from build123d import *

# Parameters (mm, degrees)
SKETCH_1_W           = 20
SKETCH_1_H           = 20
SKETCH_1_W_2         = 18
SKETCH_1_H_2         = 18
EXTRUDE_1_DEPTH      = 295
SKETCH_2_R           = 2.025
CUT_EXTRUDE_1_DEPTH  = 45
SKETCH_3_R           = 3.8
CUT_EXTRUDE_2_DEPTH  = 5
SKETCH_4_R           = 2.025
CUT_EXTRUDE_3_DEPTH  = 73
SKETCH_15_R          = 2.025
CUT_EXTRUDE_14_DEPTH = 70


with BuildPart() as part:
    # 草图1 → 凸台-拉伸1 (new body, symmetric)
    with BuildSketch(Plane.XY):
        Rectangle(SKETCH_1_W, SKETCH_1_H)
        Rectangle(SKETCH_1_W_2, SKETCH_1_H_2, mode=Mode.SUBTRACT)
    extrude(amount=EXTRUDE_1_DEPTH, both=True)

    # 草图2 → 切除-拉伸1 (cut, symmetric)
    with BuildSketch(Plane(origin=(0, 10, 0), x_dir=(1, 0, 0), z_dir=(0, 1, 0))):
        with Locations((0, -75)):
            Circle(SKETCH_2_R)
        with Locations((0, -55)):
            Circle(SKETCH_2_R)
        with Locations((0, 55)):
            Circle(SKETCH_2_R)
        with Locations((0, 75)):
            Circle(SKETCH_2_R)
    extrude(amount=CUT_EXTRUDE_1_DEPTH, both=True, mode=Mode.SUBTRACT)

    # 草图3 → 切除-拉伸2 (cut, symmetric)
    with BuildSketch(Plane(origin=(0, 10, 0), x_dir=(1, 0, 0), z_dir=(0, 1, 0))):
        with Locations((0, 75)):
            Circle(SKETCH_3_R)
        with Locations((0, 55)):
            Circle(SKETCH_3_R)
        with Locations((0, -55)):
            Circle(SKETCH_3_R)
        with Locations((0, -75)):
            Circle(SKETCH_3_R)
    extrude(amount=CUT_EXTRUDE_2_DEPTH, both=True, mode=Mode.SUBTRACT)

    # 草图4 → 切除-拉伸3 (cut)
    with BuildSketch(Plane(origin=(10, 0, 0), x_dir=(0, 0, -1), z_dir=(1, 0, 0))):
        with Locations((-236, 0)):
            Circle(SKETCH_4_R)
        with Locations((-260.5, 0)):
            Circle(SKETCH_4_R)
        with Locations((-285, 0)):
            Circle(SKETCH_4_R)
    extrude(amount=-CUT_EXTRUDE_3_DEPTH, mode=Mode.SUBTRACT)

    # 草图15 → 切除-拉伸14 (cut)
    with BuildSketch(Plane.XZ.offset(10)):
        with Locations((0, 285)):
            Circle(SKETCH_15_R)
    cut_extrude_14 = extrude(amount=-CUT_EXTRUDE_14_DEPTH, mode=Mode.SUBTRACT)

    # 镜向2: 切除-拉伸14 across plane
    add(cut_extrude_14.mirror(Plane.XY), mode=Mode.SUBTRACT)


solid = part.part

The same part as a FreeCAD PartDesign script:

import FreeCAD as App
import Part
import Sketcher
from FreeCAD import Vector

doc = App.newDocument("Part")
body = doc.addObject("PartDesign::Body", "Body")

sketch1 = body.newObject("Sketcher::SketchObject", "Sketch")
sketch1.AttachmentSupport = (doc.getObject("XY_Plane"), [""])
sketch1.MapMode = "FlatFace"
sketch1.addGeometry([
    Part.LineSegment(Vector(-10, 10, 0), Vector(-10, -10, 0)),
    Part.LineSegment(Vector(-10, -10, 0), Vector(10, -10, 0)),
    Part.LineSegment(Vector(10, -10, 0), Vector(10, 10, 0)),
    Part.LineSegment(Vector(10, 10, 0), Vector(-10, 10, 0)),
    Part.LineSegment(Vector(9, -9, 0), Vector(-9, -9, 0)),
    Part.LineSegment(Vector(-9, -9, 0), Vector(-9, 9, 0)),
    Part.LineSegment(Vector(-9, 9, 0), Vector(9, 9, 0)),
    Part.LineSegment(Vector(9, 9, 0), Vector(9, -9, 0)),
], False)
sketch1.addConstraint([
    Sketcher.Constraint("Coincident", 0, 2, 1, 1),
    Sketcher.Constraint("Coincident", 1, 2, 2, 1),
    Sketcher.Constraint("Coincident", 2, 2, 3, 1),
    Sketcher.Constraint("Coincident", 3, 2, 0, 1),
    Sketcher.Constraint("Coincident", 4, 2, 5, 1),
    Sketcher.Constraint("Coincident", 5, 2, 6, 1),
    Sketcher.Constraint("Coincident", 6, 2, 7, 1),
    Sketcher.Constraint("Coincident", 7, 2, 4, 1),
    Sketcher.Constraint("Vertical", 0),
    Sketcher.Constraint("Horizontal", 1),
    Sketcher.Constraint("Vertical", 2),
    Sketcher.Constraint("Horizontal", 3),
    Sketcher.Constraint("Horizontal", 4),
    Sketcher.Constraint("Vertical", 5),
    Sketcher.Constraint("Horizontal", 6),
    Sketcher.Constraint("Vertical", 7),
    Sketcher.Constraint("Symmetric", 0, 2, 2, 2, -1, 1),
    Sketcher.Constraint("Symmetric", 4, 2, 6, 2, -1, 1),
    Sketcher.Constraint("Equal", 3, 0),
    Sketcher.Constraint("Equal", 6, 5),
    Sketcher.Constraint("DistanceX", 1, 1, 1, 2, 20.0),
    Sketcher.Constraint("DistanceX", 4, 2, 4, 1, 18.0),
])
pad1 = body.newObject("PartDesign::Pad", "Pad")
pad1.Profile = sketch1
pad1.Length = 590
pad1.Midplane = True

sketch2 = body.newObject("Sketcher::SketchObject", "Sketch001")
sketch2.AttachmentSupport = (doc.getObject("XZ_Plane"), [""])
sketch2.MapMode = "FlatFace"
sketch2.AttachmentOffset = App.Placement(Vector(0, 0, -10), App.Rotation())
sketch2.addGeometry([
    Part.Circle(Vector(0, 75, 0), Vector(0, 0, 1), 2),
    Part.Circle(Vector(0, 55, 0), Vector(0, 0, 1), 2),
    Part.Circle(Vector(0, -55, 0), Vector(0, 0, 1), 2),
    Part.Circle(Vector(0, -75, 0), Vector(0, 0, 1), 2),
], False)
sketch2.addConstraint([
    Sketcher.Constraint("Equal", 0, 1),
    Sketcher.Constraint("Equal", 1, 2),
    Sketcher.Constraint("Equal", 2, 3),
    Sketcher.Constraint("Symmetric", 1, 3, 2, 3, -1, 1),
    Sketcher.Constraint("Symmetric", 0, 3, 3, 3, -1, 1),
    Sketcher.Constraint("PointOnObject", 0, 3, -2),
    Sketcher.Constraint("PointOnObject", 1, 3, -2),
    Sketcher.Constraint("Diameter", 0, 4.05),
    Sketcher.Constraint("DistanceY", -1, 1, 0, 3, 75.0),
    Sketcher.Constraint("DistanceY", -1, 1, 1, 3, 55.0),
])
pocket1 = body.newObject("PartDesign::Pocket", "Pocket")
pocket1.Profile = sketch2
pocket1.Length = 90
pocket1.Midplane = True

sketch3 = body.newObject("Sketcher::SketchObject", "Sketch002")
sketch3.AttachmentSupport = (doc.getObject("XZ_Plane"), [""])
sketch3.MapMode = "FlatFace"
sketch3.AttachmentOffset = App.Placement(Vector(0, 0, -10), App.Rotation())
sketch3.addGeometry([
    Part.Circle(Vector(0, -75, 0), Vector(0, 0, 1), 3.8),
    Part.Circle(Vector(0, -55, 0), Vector(0, 0, 1), 3.8),
    Part.Circle(Vector(0, 55, 0), Vector(0, 0, 1), 3.8),
    Part.Circle(Vector(0, 75, 0), Vector(0, 0, 1), 3.8),
], False)
sketch3.addConstraint([
    Sketcher.Constraint("Equal", 0, 1),
    Sketcher.Constraint("Equal", 1, 2),
    Sketcher.Constraint("Equal", 2, 3),
    Sketcher.Constraint("Symmetric", 1, 3, 2, 3, -1, 1),
    Sketcher.Constraint("Symmetric", 0, 3, 3, 3, -1, 1),
    Sketcher.Constraint("PointOnObject", 0, 3, -2),
    Sketcher.Constraint("PointOnObject", 1, 3, -2),
    Sketcher.Constraint("Diameter", 0, 7.6),
    Sketcher.Constraint("DistanceY", 0, 3, -1, 1, 75.0),
    Sketcher.Constraint("DistanceY", 1, 3, -1, 1, 55.0),
])
pocket2 = body.newObject("PartDesign::Pocket", "Pocket001")
pocket2.Profile = sketch3
pocket2.Length = 10
pocket2.Midplane = True

sketch4 = body.newObject("Sketcher::SketchObject", "Sketch003")
sketch4.AttachmentSupport = (doc.getObject("YZ_Plane"), [""])
sketch4.MapMode = "FlatFace"
sketch4.AttachmentOffset = App.Placement(Vector(0, 0, 10), App.Rotation())
sketch4.addGeometry([
    Part.Circle(Vector(0, 236, 0), Vector(0, 0, 1), 2),
    Part.Circle(Vector(0, 260.5, 0), Vector(0, 0, 1), 2),
    Part.Circle(Vector(0, 285, 0), Vector(0, 0, 1), 2),
], False)
sketch4.addConstraint([
    Sketcher.Constraint("Equal", 0, 1),
    Sketcher.Constraint("Equal", 1, 2),
    Sketcher.Constraint("PointOnObject", 0, 3, -2),
    Sketcher.Constraint("PointOnObject", 1, 3, -2),
    Sketcher.Constraint("PointOnObject", 2, 3, -2),
    Sketcher.Constraint("Diameter", 0, 4.05),
    Sketcher.Constraint("DistanceY", -1, 1, 0, 3, 236.0),
    Sketcher.Constraint("DistanceY", -1, 1, 2, 3, 285.0),
    Sketcher.Constraint("DistanceY", -1, 1, 1, 3, 260.5),
])
pocket3 = body.newObject("PartDesign::Pocket", "Pocket002")
pocket3.Profile = sketch4
pocket3.Length = 73

sketch5 = body.newObject("Sketcher::SketchObject", "Sketch004")
sketch5.AttachmentSupport = (doc.getObject("XZ_Plane"), [""])
sketch5.MapMode = "FlatFace"
sketch5.AttachmentOffset = App.Placement(Vector(0, 0, 10), App.Rotation())
sketch5.addGeometry(Part.Circle(Vector(0, 285, 0), Vector(0, 0, 1), 2), False)
sketch5.addConstraint([
    Sketcher.Constraint("PointOnObject", 0, 3, -2),
    Sketcher.Constraint("Diameter", 0, 4.05),
    Sketcher.Constraint("DistanceY", -1, 1, 0, 3, 285.0),
])
pocket4 = body.newObject("PartDesign::Pocket", "Pocket003")
pocket4.Profile = sketch5
pocket4.Length = 70
doc.recompute()

mirrored = body.newObject("PartDesign::Mirrored", "Mirrored")
mirrored.Originals = [pocket4]
mirrored.MirrorPlane = (doc.getObject("XY_Plane"), [""])
body.Tip = mirrored

doc.recompute()
